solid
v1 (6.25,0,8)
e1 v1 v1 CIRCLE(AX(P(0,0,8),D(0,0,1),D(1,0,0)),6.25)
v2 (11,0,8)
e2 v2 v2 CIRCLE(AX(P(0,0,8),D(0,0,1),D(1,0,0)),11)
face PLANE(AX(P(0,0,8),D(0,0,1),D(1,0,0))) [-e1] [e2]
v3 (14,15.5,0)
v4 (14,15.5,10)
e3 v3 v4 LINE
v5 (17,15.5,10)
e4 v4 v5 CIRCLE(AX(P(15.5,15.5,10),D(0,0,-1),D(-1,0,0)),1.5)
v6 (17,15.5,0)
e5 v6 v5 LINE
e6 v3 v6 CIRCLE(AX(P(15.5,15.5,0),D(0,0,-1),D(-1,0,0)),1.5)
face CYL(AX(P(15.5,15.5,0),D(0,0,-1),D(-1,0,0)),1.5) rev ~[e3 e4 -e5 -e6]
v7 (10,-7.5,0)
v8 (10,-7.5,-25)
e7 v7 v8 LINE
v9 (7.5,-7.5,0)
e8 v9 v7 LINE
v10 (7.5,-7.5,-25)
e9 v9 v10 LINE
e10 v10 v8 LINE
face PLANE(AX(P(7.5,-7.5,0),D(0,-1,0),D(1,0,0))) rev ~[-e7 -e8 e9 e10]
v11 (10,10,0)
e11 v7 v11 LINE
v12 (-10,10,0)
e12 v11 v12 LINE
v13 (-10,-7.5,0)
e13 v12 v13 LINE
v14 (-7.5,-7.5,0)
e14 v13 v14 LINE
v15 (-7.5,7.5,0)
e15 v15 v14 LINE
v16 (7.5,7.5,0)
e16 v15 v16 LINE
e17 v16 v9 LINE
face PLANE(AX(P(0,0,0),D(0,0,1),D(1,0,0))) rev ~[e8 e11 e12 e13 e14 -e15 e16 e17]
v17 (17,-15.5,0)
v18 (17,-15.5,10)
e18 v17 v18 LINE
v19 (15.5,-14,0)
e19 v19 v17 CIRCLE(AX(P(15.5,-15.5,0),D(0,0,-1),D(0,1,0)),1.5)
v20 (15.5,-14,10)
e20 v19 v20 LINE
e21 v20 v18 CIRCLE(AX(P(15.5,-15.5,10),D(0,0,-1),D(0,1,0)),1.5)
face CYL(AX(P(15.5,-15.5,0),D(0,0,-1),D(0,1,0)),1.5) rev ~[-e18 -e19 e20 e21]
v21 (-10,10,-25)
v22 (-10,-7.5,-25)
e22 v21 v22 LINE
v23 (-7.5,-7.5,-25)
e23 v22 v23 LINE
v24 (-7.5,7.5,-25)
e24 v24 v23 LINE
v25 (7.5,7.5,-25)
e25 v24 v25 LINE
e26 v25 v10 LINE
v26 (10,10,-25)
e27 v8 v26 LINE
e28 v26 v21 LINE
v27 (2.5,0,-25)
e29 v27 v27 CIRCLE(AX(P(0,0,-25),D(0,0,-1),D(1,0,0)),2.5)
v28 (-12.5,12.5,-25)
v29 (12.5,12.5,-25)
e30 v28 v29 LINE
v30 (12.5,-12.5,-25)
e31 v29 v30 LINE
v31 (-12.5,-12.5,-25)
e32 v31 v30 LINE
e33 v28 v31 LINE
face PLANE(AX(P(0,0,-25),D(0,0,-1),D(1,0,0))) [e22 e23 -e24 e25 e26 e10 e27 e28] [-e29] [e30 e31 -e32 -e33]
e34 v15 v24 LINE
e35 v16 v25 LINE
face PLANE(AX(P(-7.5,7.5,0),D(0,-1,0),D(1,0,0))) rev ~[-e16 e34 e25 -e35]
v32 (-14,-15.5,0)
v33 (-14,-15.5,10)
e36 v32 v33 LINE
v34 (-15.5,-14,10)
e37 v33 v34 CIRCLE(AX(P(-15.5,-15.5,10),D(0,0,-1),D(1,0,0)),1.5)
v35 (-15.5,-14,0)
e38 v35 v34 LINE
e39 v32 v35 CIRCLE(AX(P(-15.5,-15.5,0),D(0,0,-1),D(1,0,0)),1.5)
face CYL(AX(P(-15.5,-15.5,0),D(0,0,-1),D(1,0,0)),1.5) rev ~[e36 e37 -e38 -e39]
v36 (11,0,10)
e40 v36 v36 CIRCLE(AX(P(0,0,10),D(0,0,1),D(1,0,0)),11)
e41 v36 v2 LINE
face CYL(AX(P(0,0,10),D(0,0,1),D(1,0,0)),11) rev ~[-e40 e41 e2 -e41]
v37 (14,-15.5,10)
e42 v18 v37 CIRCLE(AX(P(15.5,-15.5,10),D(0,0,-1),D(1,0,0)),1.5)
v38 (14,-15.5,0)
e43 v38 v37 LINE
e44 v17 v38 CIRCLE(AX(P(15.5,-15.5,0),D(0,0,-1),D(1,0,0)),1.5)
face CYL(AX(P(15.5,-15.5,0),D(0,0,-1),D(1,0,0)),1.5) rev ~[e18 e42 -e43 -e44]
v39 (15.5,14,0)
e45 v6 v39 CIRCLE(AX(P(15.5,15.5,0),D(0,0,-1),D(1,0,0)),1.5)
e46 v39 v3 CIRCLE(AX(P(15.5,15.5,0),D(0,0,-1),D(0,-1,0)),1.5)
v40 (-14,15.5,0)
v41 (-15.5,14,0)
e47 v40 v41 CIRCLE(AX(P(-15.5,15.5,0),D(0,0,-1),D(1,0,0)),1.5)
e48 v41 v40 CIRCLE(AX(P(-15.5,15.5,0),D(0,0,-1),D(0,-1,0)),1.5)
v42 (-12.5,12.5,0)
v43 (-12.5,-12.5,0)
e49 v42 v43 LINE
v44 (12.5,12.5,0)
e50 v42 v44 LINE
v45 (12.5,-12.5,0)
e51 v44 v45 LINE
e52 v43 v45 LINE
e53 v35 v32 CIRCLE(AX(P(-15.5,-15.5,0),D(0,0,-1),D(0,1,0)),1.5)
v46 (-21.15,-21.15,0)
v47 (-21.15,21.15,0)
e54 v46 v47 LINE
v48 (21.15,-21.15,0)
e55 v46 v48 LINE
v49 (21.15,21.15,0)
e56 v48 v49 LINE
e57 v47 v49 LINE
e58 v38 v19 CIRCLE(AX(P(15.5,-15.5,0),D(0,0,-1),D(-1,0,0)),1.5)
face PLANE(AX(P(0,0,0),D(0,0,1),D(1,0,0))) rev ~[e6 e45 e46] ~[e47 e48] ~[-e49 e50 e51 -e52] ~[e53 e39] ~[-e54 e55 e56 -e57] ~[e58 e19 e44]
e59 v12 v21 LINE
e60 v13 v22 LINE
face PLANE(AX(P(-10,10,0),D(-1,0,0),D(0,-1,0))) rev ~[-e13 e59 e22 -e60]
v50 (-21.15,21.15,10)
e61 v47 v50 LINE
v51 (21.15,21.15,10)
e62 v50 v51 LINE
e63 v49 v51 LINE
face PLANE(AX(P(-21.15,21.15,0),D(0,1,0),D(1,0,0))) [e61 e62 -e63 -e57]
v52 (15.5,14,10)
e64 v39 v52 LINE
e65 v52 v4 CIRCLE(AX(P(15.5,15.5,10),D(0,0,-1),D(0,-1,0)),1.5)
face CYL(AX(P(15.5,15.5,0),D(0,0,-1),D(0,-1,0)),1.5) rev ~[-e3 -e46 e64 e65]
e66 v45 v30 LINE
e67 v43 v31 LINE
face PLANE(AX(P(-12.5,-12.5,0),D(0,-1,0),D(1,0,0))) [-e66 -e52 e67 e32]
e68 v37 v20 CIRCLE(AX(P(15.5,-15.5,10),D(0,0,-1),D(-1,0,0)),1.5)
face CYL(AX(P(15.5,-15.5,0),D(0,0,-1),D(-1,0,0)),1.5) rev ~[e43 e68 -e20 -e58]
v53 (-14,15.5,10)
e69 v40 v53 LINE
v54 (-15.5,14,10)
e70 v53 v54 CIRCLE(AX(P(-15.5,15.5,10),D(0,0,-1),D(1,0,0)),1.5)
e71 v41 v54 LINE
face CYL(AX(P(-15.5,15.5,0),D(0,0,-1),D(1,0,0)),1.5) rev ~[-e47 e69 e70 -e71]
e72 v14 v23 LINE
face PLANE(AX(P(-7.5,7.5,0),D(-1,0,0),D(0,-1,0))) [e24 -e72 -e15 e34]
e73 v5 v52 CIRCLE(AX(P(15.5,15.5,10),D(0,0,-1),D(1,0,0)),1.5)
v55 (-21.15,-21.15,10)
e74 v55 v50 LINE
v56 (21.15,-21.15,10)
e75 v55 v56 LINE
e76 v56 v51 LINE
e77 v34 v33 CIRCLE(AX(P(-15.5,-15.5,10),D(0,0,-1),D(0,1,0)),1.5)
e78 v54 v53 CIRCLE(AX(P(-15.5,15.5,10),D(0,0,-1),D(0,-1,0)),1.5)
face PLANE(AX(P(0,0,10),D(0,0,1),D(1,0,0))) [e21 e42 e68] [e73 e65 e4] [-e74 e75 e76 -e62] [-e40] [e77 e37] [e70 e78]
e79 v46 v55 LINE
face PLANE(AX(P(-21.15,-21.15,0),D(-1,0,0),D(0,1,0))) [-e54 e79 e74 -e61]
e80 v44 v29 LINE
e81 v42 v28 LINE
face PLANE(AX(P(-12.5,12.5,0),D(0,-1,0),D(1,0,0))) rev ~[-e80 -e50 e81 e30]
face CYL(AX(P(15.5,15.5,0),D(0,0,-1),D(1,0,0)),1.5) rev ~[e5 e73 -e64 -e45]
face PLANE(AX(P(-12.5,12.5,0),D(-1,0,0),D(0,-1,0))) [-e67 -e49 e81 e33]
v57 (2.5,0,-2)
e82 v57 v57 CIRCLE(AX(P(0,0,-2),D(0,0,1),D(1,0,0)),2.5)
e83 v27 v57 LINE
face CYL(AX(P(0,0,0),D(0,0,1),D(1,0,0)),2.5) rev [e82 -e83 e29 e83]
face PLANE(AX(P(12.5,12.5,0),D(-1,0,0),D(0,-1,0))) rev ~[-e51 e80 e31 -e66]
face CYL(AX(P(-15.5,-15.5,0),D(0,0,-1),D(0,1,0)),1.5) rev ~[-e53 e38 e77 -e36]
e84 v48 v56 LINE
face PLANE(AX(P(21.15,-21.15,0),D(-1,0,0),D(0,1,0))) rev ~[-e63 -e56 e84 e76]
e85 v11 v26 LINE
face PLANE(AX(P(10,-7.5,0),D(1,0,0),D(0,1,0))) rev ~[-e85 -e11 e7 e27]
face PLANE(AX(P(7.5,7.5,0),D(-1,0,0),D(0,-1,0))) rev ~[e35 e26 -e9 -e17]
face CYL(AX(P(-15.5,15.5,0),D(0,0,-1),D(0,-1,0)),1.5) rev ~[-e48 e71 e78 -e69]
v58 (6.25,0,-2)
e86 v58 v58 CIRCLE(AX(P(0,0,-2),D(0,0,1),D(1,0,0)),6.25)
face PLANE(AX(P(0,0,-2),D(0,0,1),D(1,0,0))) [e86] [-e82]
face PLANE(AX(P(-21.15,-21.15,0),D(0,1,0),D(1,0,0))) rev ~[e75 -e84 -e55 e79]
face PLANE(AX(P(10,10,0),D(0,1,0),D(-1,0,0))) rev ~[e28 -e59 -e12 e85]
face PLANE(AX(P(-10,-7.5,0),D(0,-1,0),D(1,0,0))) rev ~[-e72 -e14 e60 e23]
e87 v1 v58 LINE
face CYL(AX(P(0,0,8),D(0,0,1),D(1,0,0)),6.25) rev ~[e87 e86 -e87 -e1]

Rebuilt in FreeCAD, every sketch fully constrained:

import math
import FreeCAD as App
import Part
import Sketcher
from FreeCAD import Vector


def add_polygon(sketch, points):
    """Adds a closed chain of lines whose ends are joined by coincident constraints."""
    first, n = sketch.GeometryCount, len(points)
    for a, b in zip(points, points[1:] + points[:1]):
        sketch.addGeometry(Part.LineSegment(App.Vector(*a, 0), App.Vector(*b, 0)), False)
    for i in range(n):
        sketch.addConstraint(Sketcher.Constraint("Coincident", first + i, 2, first + (i + 1) % n, 1))

doc = App.newDocument("Part")
body = doc.addObject("PartDesign::Body", "Body")

# Sketch on XY plane
sketch1 = body.newObject("Sketcher::SketchObject", "Sketch")
sketch1.AttachmentSupport = (doc.getObject("XY_Plane"), [""])
sketch1.MapMode = "FlatFace"
add_polygon(sketch1, [(-21.1, 21.1), (-21.1, -21.1), (21.1, -21.1), (21.1, 21.1)])  # lines 0-3
sketch1.addGeometry(Part.ArcOfCircle(Part.Circle(Vector(-15.5, -15.5, 0), Vector(0, 0, 1), 1.5), math.radians(90), math.radians(360)), False)  # 4
sketch1.addGeometry(Part.ArcOfCircle(Part.Circle(Vector(-15.5, -15.5, 0), Vector(0, 0, 1), 1.5), math.radians(0), math.radians(90)), False)  # 5
sketch1.addGeometry(Part.ArcOfCircle(Part.Circle(Vector(15.5, -15.5, 0), Vector(0, 0, 1), 1.5), math.radians(180), math.radians(360)), False)  # 6
sketch1.addGeometry(Part.ArcOfCircle(Part.Circle(Vector(15.5, -15.5, 0), Vector(0, 0, 1), 1.5), math.radians(90), math.radians(180)), False)  # 7
sketch1.addGeometry(Part.ArcOfCircle(Part.Circle(Vector(15.5, -15.5, 0), Vector(0, 0, 1), 1.5), math.radians(0), math.radians(90)), False)  # 8
sketch1.addGeometry(Part.ArcOfCircle(Part.Circle(Vector(-15.5, 15.5, 0), Vector(0, 0, 1), 1.5), math.radians(0), math.radians(270)), False)  # 9
sketch1.addGeometry(Part.ArcOfCircle(Part.Circle(Vector(-15.5, 15.5, 0), Vector(0, 0, 1), 1.5), math.radians(-90), math.radians(0)), False)  # 10
sketch1.addGeometry(Part.Circle(Vector(0, 0, 0), Vector(0, 0, 1), 2.5), False)  # 11
sketch1.addGeometry(Part.ArcOfCircle(Part.Circle(Vector(15.5, 15.5, 0), Vector(0, 0, 1), 1.5), math.radians(-90), math.radians(0)), False)  # 12
sketch1.addGeometry(Part.ArcOfCircle(Part.Circle(Vector(15.5, 15.5, 0), Vector(0, 0, 1), 1.5), math.radians(180), math.radians(270)), False)  # 13
sketch1.addGeometry(Part.ArcOfCircle(Part.Circle(Vector(15.5, 15.5, 0), Vector(0, 0, 1), 1.5), math.radians(0), math.radians(180)), False)  # 14
sketch1.addConstraint(Sketcher.Constraint("Tangent", 4, 1, 5, 2))
sketch1.addConstraint(Sketcher.Constraint("Coincident", 5, 1, 4, 2))
sketch1.addConstraint(Sketcher.Constraint("Tangent", 6, 1, 7, 2))
sketch1.addConstraint(Sketcher.Constraint("Tangent", 7, 1, 8, 2))
sketch1.addConstraint(Sketcher.Constraint("Tangent", 8, 1, 6, 2))
sketch1.addConstraint(Sketcher.Constraint("Tangent", 9, 1, 10, 2))
sketch1.addConstraint(Sketcher.Constraint("Coincident", 10, 1, 9, 2))
sketch1.addConstraint(Sketcher.Constraint("Tangent", 12, 1, 13, 2))
sketch1.addConstraint(Sketcher.Constraint("Tangent", 13, 1, 14, 2))
sketch1.addConstraint(Sketcher.Constraint("Tangent", 14, 1, 12, 2))
sketch1.addConstraint(Sketcher.Constraint("Vertical", 0))
sketch1.addConstraint(Sketcher.Constraint("Horizontal", 1))
sketch1.addConstraint(Sketcher.Constraint("Vertical", 2))
sketch1.addConstraint(Sketcher.Constraint("Horizontal", 3))
sketch1.addConstraint(Sketcher.Constraint("Coincident", 11, 3, -1, 1))
sketch1.addConstraint(Sketcher.Constraint("Equal", 5, 6))
sketch1.addConstraint(Sketcher.Constraint("Equal", 8, 9))
sketch1.addConstraint(Sketcher.Constraint("Equal", 10, 12))
sketch1.addConstraint(Sketcher.Constraint("Symmetric", 6, 3, 9, 3, -1, 1))
sketch1.addConstraint(Sketcher.Constraint("Symmetric", 4, 3, 12, 3, -1, 1))
sketch1.addConstraint(Sketcher.Constraint("Symmetric", 0, 2, 2, 2, -1, 1))
sketch1.addConstraint(Sketcher.Constraint("Symmetric", 4, 3, 6, 3, -2))
sketch1.addConstraint(Sketcher.Constraint("Horizontal", 8, 3, 5, 1))
sketch1.addConstraint(Sketcher.Constraint("Horizontal", 5, 1, 6, 1))
sketch1.addConstraint(Sketcher.Constraint("Horizontal", 6, 1, 8, 1))
sketch1.addConstraint(Sketcher.Constraint("Horizontal", 14, 3, 9, 1))
sketch1.addConstraint(Sketcher.Constraint("Horizontal", 9, 1, 13, 1))
sketch1.addConstraint(Sketcher.Constraint("Horizontal", 13, 1, 14, 1))
sketch1.addConstraint(Sketcher.Constraint("Vertical", 10, 3, 4, 1))
sketch1.addConstraint(Sketcher.Constraint("Vertical", 14, 3, 7, 1))
sketch1.addConstraint(Sketcher.Constraint("Vertical", 4, 1, 10, 1))
sketch1.addConstraint(Sketcher.Constraint("Vertical", 7, 1, 12, 1))
sketch1.addConstraint(Sketcher.Constraint("Equal", 3, 0))
sketch1.addConstraint(Sketcher.Constraint("Diameter", 11, 5.0))
sketch1.addConstraint(Sketcher.Constraint("Radius", 4, 1.5))
sketch1.addConstraint(Sketcher.Constraint("DistanceX", 1, 1, 1, 2, 42.3))
sketch1.addConstraint(Sketcher.Constraint("DistanceY", 4, 1, -1, 1, 14.0))
sketch1.addConstraint(Sketcher.Constraint("DistanceX", 5, 1, -1, 1, 14.0))
pad1 = body.newObject("PartDesign::Pad", "Pad")
pad1.Profile = sketch1
pad1.Length = 10

# Sketch on XY plane
sketch2 = body.newObject("Sketcher::SketchObject", "Sketch001")
sketch2.AttachmentSupport = (doc.getObject("XY_Plane"), [""])
sketch2.MapMode = "FlatFace"
sketch2.AttachmentOffset = App.Placement(Vector(0, 0, 10), App.Rotation())
sketch2.addGeometry(Part.Circle(Vector(0, 0, 0), Vector(0, 0, 1), 11), False)
sketch2.addConstraint(Sketcher.Constraint("Coincident", 0, 3, -1, 1))
sketch2.addConstraint(Sketcher.Constraint("Diameter", 0, 22.0))
pocket1 = body.newObject("PartDesign::Pocket", "Pocket")
pocket1.Profile = sketch2
pocket1.Length = 2

# Sketch on XY plane
sketch3 = body.newObject("Sketcher::SketchObject", "Sketch002")
sketch3.AttachmentSupport = (doc.getObject("XY_Plane"), [""])
sketch3.MapMode = "FlatFace"
add_polygon(sketch3, [(-12.5, -12.5), (-12.5, 12.5), (12.5, 12.5), (12.5, -12.5)])  # lines 0-3
add_polygon(sketch3, [(-10, 10), (-10, -7.5), (-7.5, -7.5), (-7.5, 7.5), (7.5, 7.5), (7.5, -7.5), (10, -7.5), (10, 10)])  # lines 4-11
sketch3.addGeometry(Part.Circle(Vector(0, 0, 0), Vector(0, 0, 1), 2.5), False)  # 12
sketch3.addConstraint(Sketcher.Constraint("Vertical", 0))
sketch3.addConstraint(Sketcher.Constraint("Horizontal", 1))
sketch3.addConstraint(Sketcher.Constraint("Vertical", 2))
sketch3.addConstraint(Sketcher.Constraint("Horizontal", 3))
sketch3.addConstraint(Sketcher.Constraint("Vertical", 4))
sketch3.addConstraint(Sketcher.Constraint("Horizontal", 5))
sketch3.addConstraint(Sketcher.Constraint("Vertical", 6))
sketch3.addConstraint(Sketcher.Constraint("Horizontal", 7))
sketch3.addConstraint(Sketcher.Constraint("Vertical", 8))
sketch3.addConstraint(Sketcher.Constraint("Horizontal", 9))
sketch3.addConstraint(Sketcher.Constraint("Vertical", 10))
sketch3.addConstraint(Sketcher.Constraint("Horizontal", 11))
sketch3.addConstraint(Sketcher.Constraint("Coincident", 12, 3, -1, 1))
sketch3.addConstraint(Sketcher.Constraint("Symmetric", 0, 2, 2, 2, -1, 1))
sketch3.addConstraint(Sketcher.Constraint("Symmetric", 5, 2, 7, 2, -1, 1))
sketch3.addConstraint(Sketcher.Constraint("Symmetric", 4, 2, 9, 2, -2))
sketch3.addConstraint(Sketcher.Constraint("Equal", 3, 0))
sketch3.addConstraint(Sketcher.Constraint("Equal", 7, 6))
sketch3.addConstraint(Sketcher.Constraint("Diameter", 12, 5.0))
sketch3.addConstraint(Sketcher.Constraint("DistanceX", 1, 1, 1, 2, 25.0))
sketch3.addConstraint(Sketcher.Constraint("DistanceX", 7, 1, 7, 2, 15.0))
sketch3.addConstraint(Sketcher.Constraint("DistanceX", 11, 2, 11, 1, 20.0))
sketch3.addConstraint(Sketcher.Constraint("DistanceY", 4, 2, 4, 1, 17.5))
pad2 = body.newObject("PartDesign::Pad", "Pad001")
pad2.Profile = sketch3
pad2.Length = 25
pad2.Reversed = True

# Sketch on XY plane
sketch4 = body.newObject("Sketcher::SketchObject", "Sketch003")
sketch4.AttachmentSupport = (doc.getObject("XY_Plane"), [""])
sketch4.MapMode = "FlatFace"
sketch4.AttachmentOffset = App.Placement(Vector(0, 0, 8), App.Rotation())
sketch4.addGeometry(Part.Circle(Vector(0, 0, 0), Vector(0, 0, 1), 6), False)
sketch4.addConstraint(Sketcher.Constraint("Coincident", 0, 3, -1, 1))
sketch4.addConstraint(Sketcher.Constraint("Diameter", 0, 12.5))
pocket2 = body.newObject("PartDesign::Pocket", "Pocket001")
pocket2.Profile = sketch4
pocket2.Length = 10

doc.recompute()
